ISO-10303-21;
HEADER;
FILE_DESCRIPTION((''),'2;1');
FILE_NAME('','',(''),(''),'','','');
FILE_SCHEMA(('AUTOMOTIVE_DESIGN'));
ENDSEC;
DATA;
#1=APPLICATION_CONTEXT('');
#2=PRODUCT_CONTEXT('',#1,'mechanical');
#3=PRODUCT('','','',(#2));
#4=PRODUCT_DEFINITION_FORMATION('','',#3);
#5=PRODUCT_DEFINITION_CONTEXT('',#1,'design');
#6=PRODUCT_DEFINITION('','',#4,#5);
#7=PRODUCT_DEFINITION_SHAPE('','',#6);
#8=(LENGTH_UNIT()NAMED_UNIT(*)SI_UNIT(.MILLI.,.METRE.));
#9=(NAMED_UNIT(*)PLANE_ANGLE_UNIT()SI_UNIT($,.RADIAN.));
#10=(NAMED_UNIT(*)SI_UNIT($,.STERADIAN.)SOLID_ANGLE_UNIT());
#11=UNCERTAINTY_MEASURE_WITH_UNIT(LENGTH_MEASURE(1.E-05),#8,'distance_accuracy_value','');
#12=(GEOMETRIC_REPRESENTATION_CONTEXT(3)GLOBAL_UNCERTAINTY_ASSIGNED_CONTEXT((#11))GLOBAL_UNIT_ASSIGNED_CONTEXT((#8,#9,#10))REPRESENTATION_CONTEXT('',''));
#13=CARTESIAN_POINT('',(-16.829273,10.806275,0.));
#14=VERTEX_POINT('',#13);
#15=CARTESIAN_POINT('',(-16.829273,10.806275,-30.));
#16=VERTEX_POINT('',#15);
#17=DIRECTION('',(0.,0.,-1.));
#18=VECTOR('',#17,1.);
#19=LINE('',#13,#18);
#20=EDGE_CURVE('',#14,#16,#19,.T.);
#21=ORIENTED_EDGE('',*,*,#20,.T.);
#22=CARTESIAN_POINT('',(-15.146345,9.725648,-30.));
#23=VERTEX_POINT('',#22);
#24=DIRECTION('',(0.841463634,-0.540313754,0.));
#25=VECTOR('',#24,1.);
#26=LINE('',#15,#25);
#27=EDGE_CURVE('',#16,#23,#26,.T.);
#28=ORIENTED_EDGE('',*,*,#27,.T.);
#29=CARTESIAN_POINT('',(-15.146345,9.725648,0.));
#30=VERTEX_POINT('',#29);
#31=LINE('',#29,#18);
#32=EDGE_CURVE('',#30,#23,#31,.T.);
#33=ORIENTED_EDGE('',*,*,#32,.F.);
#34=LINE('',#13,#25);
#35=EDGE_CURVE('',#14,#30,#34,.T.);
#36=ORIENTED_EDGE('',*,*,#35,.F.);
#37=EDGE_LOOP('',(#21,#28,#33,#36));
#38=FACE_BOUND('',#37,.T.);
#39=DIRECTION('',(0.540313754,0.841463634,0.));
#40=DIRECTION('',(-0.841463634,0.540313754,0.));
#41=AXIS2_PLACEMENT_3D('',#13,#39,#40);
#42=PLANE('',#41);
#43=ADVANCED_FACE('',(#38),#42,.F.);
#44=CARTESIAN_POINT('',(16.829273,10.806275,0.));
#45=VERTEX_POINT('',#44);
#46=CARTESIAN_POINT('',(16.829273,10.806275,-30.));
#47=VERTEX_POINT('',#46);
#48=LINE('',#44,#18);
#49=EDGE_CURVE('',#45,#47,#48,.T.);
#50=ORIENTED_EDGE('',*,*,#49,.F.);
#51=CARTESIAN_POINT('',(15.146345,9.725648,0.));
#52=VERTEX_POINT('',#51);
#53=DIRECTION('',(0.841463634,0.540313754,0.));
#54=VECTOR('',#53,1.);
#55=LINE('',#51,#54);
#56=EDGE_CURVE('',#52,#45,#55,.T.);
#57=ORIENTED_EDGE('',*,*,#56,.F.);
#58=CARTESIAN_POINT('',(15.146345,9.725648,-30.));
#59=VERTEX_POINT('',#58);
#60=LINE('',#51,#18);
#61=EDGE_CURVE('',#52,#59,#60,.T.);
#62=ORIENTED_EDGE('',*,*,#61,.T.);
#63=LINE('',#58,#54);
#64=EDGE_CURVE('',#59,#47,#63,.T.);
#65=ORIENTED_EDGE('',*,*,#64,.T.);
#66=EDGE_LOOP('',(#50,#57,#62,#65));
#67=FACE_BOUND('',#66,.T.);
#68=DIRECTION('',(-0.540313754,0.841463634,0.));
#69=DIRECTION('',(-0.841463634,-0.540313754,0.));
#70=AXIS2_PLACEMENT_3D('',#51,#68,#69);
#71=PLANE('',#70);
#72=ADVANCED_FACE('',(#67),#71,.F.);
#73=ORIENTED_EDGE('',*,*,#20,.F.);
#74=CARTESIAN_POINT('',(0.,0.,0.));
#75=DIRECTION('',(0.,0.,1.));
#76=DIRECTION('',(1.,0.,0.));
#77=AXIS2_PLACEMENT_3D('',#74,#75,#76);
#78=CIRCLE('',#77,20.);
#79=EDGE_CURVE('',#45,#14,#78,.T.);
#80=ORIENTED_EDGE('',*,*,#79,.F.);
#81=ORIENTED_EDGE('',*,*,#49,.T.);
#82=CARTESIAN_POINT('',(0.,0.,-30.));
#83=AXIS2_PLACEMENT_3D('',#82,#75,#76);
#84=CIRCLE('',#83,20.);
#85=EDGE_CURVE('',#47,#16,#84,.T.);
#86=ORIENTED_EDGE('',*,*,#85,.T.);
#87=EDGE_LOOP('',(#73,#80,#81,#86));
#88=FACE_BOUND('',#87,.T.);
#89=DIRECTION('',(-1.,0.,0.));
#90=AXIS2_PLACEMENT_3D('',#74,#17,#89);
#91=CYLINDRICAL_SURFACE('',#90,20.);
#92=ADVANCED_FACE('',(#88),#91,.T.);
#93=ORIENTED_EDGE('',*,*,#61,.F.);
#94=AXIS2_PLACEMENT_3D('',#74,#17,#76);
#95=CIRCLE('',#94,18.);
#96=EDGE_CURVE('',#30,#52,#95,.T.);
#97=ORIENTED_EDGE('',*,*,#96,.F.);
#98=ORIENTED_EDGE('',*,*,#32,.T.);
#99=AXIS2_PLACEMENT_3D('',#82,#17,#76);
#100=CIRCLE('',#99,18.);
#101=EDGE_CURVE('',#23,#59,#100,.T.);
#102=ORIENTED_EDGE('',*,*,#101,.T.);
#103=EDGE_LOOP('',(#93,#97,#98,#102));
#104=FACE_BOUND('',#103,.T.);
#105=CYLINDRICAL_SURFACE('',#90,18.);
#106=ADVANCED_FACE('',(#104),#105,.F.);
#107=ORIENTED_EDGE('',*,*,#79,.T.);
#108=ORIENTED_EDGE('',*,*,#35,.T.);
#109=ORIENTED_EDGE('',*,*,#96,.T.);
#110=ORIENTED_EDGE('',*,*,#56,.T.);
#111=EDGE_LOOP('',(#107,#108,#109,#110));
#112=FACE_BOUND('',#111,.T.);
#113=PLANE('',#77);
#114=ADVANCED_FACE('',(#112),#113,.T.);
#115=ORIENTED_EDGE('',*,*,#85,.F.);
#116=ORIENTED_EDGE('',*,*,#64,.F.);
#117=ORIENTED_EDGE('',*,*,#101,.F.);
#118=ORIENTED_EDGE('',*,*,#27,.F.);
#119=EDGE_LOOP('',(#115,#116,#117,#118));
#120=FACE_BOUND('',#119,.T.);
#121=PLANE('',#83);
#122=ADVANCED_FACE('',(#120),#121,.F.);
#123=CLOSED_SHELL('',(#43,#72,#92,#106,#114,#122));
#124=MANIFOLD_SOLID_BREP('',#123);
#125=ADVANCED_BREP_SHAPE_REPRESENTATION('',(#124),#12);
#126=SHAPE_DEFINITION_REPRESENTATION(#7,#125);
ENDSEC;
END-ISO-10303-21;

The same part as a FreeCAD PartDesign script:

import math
import FreeCAD as App
import Part
import Sketcher

doc = App.newDocument("Part")
body = doc.addObject("PartDesign::Body", "Body")

# Sketch on XY plane
sketch1 = body.newObject("Sketcher::SketchObject", "Sketch")
sketch1.AttachmentSupport = (doc.getObject("XY_Plane"), [""])
sketch1.MapMode = "FlatFace"
sketch1.addGeometry([
    Part.LineSegment(App.Vector(-16.8, 10.8, 0), App.Vector(-15.1, 9.7, 0)),
    Part.ArcOfCircle(Part.Circle(App.Vector(0, 0, 0), App.Vector(0, 0, 1), 18), math.radians(33), math.radians(147)),
    Part.LineSegment(App.Vector(15.1, 9.7, 0), App.Vector(16.8, 10.8, 0)),
    Part.ArcOfCircle(Part.Circle(App.Vector(0, 0, 0), App.Vector(0, 0, 1), 20), math.radians(33), math.radians(147)),
], False)
sketch1.addConstraint([
    Sketcher.Constraint("Coincident", 0, 2, 1, 2),
    Sketcher.Constraint("Coincident", 1, 1, 2, 1),
    Sketcher.Constraint("Coincident", 2, 2, 3, 1),
    Sketcher.Constraint("Coincident", 3, 2, 0, 1),
    Sketcher.Constraint("Coincident", 1, 3, -1, 1),
    Sketcher.Constraint("Coincident", 3, 3, -1, 1),
    Sketcher.Constraint("Horizontal", 0, 2, 1, 1),
    Sketcher.Constraint("Horizontal", 2, 2, 3, 2),
    Sketcher.Constraint("Radius", 1, 18.0),
    Sketcher.Constraint("Radius", 3, 20.0),
    Sketcher.Constraint("DistanceX", 0, 2, 1, 1, 30.292691),
    Sketcher.Constraint("DistanceX", 0, 2, 2, 2, 31.975618),
])

# Sketch on XZ plane
sketch2 = body.newObject("Sketcher::SketchObject", "Sketch001")
sketch2.AttachmentSupport = (doc.getObject("XZ_Plane"), [""])
sketch2.MapMode = "FlatFace"
sketch2.addGeometry(Part.LineSegment(App.Vector(0, 0, 0), App.Vector(0, -30, 0)), False)
sketch2.addConstraint([
    Sketcher.Constraint("Vertical", 0),
    Sketcher.Constraint("Coincident", 0, 1, -1, 1),
    Sketcher.Constraint("DistanceY", 0, 2, 0, 1, 30.0),
])
doc.recompute()

additivepipe = body.newObject("PartDesign::AdditivePipe", "AdditivePipe")
additivepipe.Profile = sketch1
additivepipe.Spine = (sketch2, ["Edge1"])

doc.recompute()
